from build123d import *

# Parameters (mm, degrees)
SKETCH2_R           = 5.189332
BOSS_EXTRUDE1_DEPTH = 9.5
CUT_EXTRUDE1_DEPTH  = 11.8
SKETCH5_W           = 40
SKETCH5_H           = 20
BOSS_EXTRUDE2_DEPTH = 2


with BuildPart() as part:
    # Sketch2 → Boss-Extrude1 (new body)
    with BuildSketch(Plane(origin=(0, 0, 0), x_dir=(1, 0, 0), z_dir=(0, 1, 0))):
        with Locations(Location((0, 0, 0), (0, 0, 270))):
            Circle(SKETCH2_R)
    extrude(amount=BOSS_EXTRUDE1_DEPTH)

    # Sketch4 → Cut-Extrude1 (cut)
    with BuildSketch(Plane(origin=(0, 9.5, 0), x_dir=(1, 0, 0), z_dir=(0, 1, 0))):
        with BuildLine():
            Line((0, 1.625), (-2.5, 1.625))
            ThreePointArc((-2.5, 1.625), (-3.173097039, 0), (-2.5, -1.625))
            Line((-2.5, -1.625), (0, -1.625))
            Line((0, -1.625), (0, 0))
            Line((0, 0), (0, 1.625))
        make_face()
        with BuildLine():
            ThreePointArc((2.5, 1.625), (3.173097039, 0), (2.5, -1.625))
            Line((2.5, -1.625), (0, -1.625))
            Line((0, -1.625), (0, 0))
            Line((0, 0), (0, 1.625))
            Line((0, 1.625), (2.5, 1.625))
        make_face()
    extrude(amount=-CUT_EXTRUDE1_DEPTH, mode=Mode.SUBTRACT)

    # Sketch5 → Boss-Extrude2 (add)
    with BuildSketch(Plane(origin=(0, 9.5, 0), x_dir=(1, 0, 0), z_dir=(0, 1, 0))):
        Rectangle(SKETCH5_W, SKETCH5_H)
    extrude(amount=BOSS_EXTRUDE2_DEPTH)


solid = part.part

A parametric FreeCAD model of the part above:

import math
import FreeCAD as App
import Part
import Sketcher

V = App.Vector
Q = App.Units.Quantity

doc = App.newDocument("Part")
body = doc.addObject("PartDesign::Body", "Body")

sketch1 = body.newObject("Sketcher::SketchObject", "Sketch")
sketch1.AttachmentSupport = (doc.getObject("XZ_Plane"), [""])
sketch1.MapMode = "FlatFace"
sketch1.addGeometry(Part.Circle(V(0, 0, 0), V(0, 0, 1), 5.189332), False)
sketch1.addConstraint([
    Sketcher.Constraint("Coincident", 0, 3, -1, 1),
    Sketcher.Constraint("Diameter", 0, Q("10.378664 mm")),
])
pad1 = body.newObject("PartDesign::Pad", "Pad")
pad1.Profile = sketch1
pad1.Length = 9.5
pad1.Reversed = True

sketch2 = body.newObject("Sketcher::SketchObject", "Sketch001")
sketch2.AttachmentSupport = (doc.getObject("XZ_Plane"), [""])
sketch2.MapMode = "FlatFace"
sketch2.AttachmentOffset = App.Placement(V(0, 0, -9.5), App.Rotation())
sketch2.addGeometry([
    Part.ArcOfCircle(Part.Circle(V(-0.875, 0, 0), V(0, 0, 1), 2.298097), math.radians(135), math.radians(225)),
    Part.LineSegment(V(-2.5, 1.625, 0), V(2.5, 1.625, 0)),
    Part.ArcOfCircle(Part.Circle(V(0.875, 0, 0), V(0, 0, 1), 2.298097), math.radians(-45), math.radians(45)),
    Part.LineSegment(V(2.5, -1.625, 0), V(-2.5, -1.625, 0)),
], False)
sketch2.addConstraint([
    Sketcher.Constraint("Coincident", 0, 1, 1, 1),
    Sketcher.Constraint("Coincident", 1, 2, 2, 2),
    Sketcher.Constraint("Coincident", 2, 1, 3, 1),
    Sketcher.Constraint("Coincident", 3, 2, 0, 2),
    Sketcher.Constraint("Horizontal", 1),
    Sketcher.Constraint("Horizontal", 3),
    Sketcher.Constraint("Equal", 0, 2),
    Sketcher.Constraint("Symmetric", 0, 3, 2, 3, -1, 1),
    Sketcher.Constraint("Symmetric", 1, 2, 2, 1, -1),
    Sketcher.Constraint("DistanceX", 1, 1, 1, 2, Q("5 mm")),
    Sketcher.Constraint("DistanceX", 0, 3, 2, 3, Q("1.75 mm")),
    Sketcher.Constraint("DistanceY", 2, 1, 1, 2, Q("3.25 mm")),
])
pocket1 = body.newObject("PartDesign::Pocket", "Pocket")
pocket1.Profile = sketch2
pocket1.Length = 11.8
pocket1.Reversed = True

sketch3 = body.newObject("Sketcher::SketchObject", "Sketch002")
sketch3.AttachmentSupport = (doc.getObject("XZ_Plane"), [""])
sketch3.MapMode = "FlatFace"
sketch3.AttachmentOffset = App.Placement(V(0, 0, -9.5), App.Rotation())
sketch3.addGeometry([
    Part.LineSegment(V(-20, -10, 0), V(-20, 10, 0)),
    Part.LineSegment(V(-20, 10, 0), V(20, 10, 0)),
    Part.LineSegment(V(20, 10, 0), V(20, -10, 0)),
    Part.LineSegment(V(20, -10, 0), V(-20, -10, 0)),
], False)
sketch3.addConstraint([
    Sketcher.Constraint("Coincident", 0, 2, 1, 1),
    Sketcher.Constraint("Coincident", 1, 2, 2, 1),
    Sketcher.Constraint("Coincident", 2, 2, 3, 1),
    Sketcher.Constraint("Coincident", 3, 2, 0, 1),
    Sketcher.Constraint("Vertical", 0),
    Sketcher.Constraint("Horizontal", 1),
    Sketcher.Constraint("Vertical", 2),
    Sketcher.Constraint("Horizontal", 3),
    Sketcher.Constraint("Symmetric", 0, 2, 2, 2, -1, 1),
    Sketcher.Constraint("DistanceX", 1, 1, 1, 2, Q("40 mm")),
    Sketcher.Constraint("DistanceY", 0, 1, 0, 2, Q("20 mm")),
])
pad2 = body.newObject("PartDesign::Pad", "Pad001")
pad2.Profile = sketch3
pad2.Length = 2
pad2.Reversed = True

doc.recompute()
